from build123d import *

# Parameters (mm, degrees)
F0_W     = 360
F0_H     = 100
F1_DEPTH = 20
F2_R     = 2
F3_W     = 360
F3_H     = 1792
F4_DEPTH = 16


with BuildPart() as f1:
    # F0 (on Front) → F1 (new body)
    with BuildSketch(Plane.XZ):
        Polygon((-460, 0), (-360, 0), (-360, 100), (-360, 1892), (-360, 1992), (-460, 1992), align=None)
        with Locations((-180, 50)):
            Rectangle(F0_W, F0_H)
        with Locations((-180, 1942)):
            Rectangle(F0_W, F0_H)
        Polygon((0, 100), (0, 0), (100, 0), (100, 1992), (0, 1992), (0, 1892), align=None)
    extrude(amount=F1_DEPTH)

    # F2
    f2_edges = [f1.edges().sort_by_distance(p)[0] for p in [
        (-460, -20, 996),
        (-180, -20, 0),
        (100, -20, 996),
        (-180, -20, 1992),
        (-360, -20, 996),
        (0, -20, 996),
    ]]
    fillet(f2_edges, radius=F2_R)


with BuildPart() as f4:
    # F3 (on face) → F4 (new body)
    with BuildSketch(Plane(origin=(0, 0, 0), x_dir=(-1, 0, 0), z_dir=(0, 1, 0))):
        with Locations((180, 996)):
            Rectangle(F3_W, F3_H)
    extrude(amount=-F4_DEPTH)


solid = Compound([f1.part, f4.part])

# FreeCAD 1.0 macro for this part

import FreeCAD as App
import Part
import Sketcher
from FreeCAD import Vector


def edges_at(feature, points):
    """Names of the edges that pass closest to the given points."""
    edges = feature.Shape.Edges
    near = lambda p: min(range(len(edges)), key=lambda i: edges[i].distToShape(Part.Vertex(*p))[0])
    return sorted({f"Edge{near(p) + 1}" for p in points})


def add_polygon(sketch, points):
    """Adds a closed chain of lines whose ends are joined by coincident constraints."""
    first, n = sketch.GeometryCount, len(points)
    for a, b in zip(points, points[1:] + points[:1]):
        sketch.addGeometry(Part.LineSegment(App.Vector(*a, 0), App.Vector(*b, 0)), False)
    for i in range(n):
        sketch.addConstraint(Sketcher.Constraint("Coincident", first + i, 2, first + (i + 1) % n, 1))

doc = App.newDocument("Part")
params = doc.addObject("Spreadsheet::Sheet", "Params")
for row, (alias, value) in enumerate([
    ("sketch1_width", "560 mm"),
    ("sketch1_width2", "360 mm"),
    ("sketch1_height", "1992 mm"),
    ("sketch1_height2", "1792 mm"),
    ("pad1_length", "20 mm"),
    ("fillet_radius", "2 mm"),
    ("sketch2_width", "360 mm"),
    ("sketch2_height", "1792 mm"),
    ("pad2_length", "16 mm"),
], start=1):
    params.set(f"A{row}", alias)
    params.set(f"B{row}", "=" + value)
    params.setAlias(f"B{row}", alias)

body = doc.addObject("PartDesign::Body", "Body")

# Sketch on XZ plane
sketch1 = body.newObject("Sketcher::SketchObject", "Sketch")
sketch1.AttachmentSupport = (doc.getObject("XZ_Plane"), [""])
sketch1.MapMode = "FlatFace"
add_polygon(sketch1, [(-460, 0), (100, 0), (100, 1992), (-460, 1992)])  # lines 0-3
add_polygon(sketch1, [(0, 100), (-360, 100), (-360, 1892), (0, 1892)])  # lines 4-7
sketch1.addConstraint([
    Sketcher.Constraint("Horizontal", 0),
    Sketcher.Constraint("Vertical", 1),
    Sketcher.Constraint("Horizontal", 2),
    Sketcher.Constraint("Vertical", 3),
    Sketcher.Constraint("Horizontal", 4),
    Sketcher.Constraint("Vertical", 5),
    Sketcher.Constraint("Horizontal", 6),
    Sketcher.Constraint("Vertical", 7),
    Sketcher.Constraint("PointOnObject", 0, 2, -1),
    Sketcher.Constraint("PointOnObject", 6, 2, -2),
    Sketcher.Constraint("DistanceX", 0, 1, 0, 2, 560.0),
    Sketcher.Constraint("DistanceX", 4, 2, 4, 1, 360.0),
    Sketcher.Constraint("DistanceY", 1, 1, 1, 2, 1992.0),
    Sketcher.Constraint("DistanceY", 5, 1, 5, 2, 1792.0),
    Sketcher.Constraint("DistanceX", -1, 1, 0, 2, 100.0),
    Sketcher.Constraint("DistanceY", -1, 1, 4, 2, 100.0),
])
sketch1.setExpression("Constraints[18]", "Params.sketch1_width")
sketch1.setExpression("Constraints[19]", "Params.sketch1_width2")
sketch1.setExpression("Constraints[20]", "Params.sketch1_height")
sketch1.setExpression("Constraints[21]", "Params.sketch1_height2")
pad1 = body.newObject("PartDesign::Pad", "Pad")
pad1.Profile = sketch1
pad1.setExpression("Length", "Params.pad1_length")
doc.recompute()

fillet = body.newObject("PartDesign::Fillet", "Fillet")
fillet.Base = (pad1, edges_at(pad1, [
    (-460, -20, 996),
    (-180, -20, 0),
    (100, -20, 996),
    (-180, -20, 1992),
    (-360, -20, 996),
    (0, -20, 996),
]))
fillet.setExpression("Radius", "Params.fillet_radius")
body2 = doc.addObject("PartDesign::Body", "Body001")

# Sketch on XZ plane
sketch2 = body2.newObject("Sketcher::SketchObject", "Sketch001")
sketch2.AttachmentSupport = (doc.getObject("XZ_Plane001"), [""])
sketch2.MapMode = "FlatFace"
add_polygon(sketch2, [(0, 1892), (0, 100), (-360, 100), (-360, 1892)])  # lines 0-3
sketch2.addConstraint([
    Sketcher.Constraint("Vertical", 0),
    Sketcher.Constraint("Horizontal", 1),
    Sketcher.Constraint("Vertical", 2),
    Sketcher.Constraint("Horizontal", 3),
    Sketcher.Constraint("PointOnObject", 0, 2, -2),
    Sketcher.Constraint("DistanceX", 1, 2, 1, 1, 360.0),
    Sketcher.Constraint("DistanceY", 0, 2, 0, 1, 1792.0),
    Sketcher.Constraint("DistanceY", -1, 1, 0, 2, 100.0),
])
sketch2.setExpression("Constraints[9]", "Params.sketch2_width")
sketch2.setExpression("Constraints[10]", "Params.sketch2_height")
pad2 = body2.newObject("PartDesign::Pad", "Pad001")
pad2.Profile = sketch2
pad2.setExpression("Length", "Params.pad2_length")

doc.recompute()
